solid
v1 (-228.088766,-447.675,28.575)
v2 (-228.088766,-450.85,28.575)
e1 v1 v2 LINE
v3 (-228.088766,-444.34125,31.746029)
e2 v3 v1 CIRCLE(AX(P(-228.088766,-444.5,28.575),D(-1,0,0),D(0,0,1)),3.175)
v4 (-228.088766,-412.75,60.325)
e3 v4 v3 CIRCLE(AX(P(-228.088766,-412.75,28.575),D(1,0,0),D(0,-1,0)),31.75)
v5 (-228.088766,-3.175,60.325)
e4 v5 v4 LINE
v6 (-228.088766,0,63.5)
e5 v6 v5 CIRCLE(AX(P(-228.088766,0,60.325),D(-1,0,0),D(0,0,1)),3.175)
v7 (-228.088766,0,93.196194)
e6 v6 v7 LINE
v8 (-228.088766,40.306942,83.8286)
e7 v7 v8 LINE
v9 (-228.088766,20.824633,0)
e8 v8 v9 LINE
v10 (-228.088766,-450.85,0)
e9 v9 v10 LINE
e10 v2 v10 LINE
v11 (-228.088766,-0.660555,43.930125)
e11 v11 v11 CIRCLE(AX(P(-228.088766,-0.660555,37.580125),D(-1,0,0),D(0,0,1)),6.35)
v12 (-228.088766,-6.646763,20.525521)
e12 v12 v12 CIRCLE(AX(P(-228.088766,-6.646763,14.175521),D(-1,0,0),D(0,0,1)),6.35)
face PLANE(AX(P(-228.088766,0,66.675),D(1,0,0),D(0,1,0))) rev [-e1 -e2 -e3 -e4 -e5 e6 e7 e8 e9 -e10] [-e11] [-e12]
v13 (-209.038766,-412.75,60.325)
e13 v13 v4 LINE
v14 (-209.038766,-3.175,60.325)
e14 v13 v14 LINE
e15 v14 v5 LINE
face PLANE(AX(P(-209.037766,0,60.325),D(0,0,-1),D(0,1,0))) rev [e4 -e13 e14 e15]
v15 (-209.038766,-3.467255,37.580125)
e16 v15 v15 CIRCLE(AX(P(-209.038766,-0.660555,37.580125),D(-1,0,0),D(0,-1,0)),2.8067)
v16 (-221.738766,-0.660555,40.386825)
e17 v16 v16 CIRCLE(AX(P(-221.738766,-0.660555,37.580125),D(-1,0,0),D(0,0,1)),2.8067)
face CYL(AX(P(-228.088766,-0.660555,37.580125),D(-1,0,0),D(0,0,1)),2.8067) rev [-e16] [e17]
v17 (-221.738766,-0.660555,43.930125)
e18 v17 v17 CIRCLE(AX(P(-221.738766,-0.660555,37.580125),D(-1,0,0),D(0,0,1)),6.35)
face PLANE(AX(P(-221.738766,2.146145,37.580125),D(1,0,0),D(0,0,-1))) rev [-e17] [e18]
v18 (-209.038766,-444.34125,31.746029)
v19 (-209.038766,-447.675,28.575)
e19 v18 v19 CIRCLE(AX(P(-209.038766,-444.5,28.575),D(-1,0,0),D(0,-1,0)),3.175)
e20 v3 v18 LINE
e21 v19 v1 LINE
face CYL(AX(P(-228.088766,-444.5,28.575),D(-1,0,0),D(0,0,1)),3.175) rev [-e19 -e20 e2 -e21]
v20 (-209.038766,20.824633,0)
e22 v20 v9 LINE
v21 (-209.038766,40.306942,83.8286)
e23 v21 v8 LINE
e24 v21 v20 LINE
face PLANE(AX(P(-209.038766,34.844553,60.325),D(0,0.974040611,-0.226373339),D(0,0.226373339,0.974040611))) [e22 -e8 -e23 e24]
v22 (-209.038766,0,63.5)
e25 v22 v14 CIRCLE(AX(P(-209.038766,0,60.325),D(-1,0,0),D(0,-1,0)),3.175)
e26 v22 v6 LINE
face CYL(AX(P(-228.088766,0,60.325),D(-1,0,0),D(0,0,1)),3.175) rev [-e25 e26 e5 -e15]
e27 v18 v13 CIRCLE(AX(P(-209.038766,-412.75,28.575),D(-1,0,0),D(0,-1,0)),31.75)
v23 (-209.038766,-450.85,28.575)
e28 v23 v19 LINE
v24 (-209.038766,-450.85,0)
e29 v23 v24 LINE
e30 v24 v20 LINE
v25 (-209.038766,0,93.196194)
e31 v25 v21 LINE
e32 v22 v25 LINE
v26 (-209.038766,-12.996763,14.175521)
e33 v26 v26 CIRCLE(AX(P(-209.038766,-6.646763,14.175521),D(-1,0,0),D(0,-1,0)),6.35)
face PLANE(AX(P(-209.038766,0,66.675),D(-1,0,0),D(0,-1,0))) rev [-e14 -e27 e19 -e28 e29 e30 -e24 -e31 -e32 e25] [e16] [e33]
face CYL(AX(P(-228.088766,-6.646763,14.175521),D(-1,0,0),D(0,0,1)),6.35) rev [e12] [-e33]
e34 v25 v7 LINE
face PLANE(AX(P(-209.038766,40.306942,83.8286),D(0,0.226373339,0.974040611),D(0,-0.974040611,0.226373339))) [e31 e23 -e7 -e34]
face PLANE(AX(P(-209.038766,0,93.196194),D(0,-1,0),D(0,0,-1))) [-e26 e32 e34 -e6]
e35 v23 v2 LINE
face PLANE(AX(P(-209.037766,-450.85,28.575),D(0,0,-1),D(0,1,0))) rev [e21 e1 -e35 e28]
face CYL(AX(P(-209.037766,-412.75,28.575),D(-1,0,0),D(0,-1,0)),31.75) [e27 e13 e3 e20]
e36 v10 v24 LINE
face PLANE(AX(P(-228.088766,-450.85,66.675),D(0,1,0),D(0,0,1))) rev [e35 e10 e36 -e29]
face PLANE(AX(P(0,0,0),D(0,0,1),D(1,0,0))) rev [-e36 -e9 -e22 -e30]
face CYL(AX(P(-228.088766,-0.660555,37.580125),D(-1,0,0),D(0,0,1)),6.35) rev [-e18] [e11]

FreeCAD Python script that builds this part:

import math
import FreeCAD as App
import Part
import Sketcher
Q = App.Units.Quantity


def edges_at(feature, points):
    """Names of the edges that pass closest to the given points."""
    edges = feature.Shape.Edges
    near = lambda p: min(range(len(edges)), key=lambda i: edges[i].distToShape(Part.Vertex(*p))[0])
    return sorted({f"Edge{near(p) + 1}" for p in points})

doc = App.newDocument("Part")
body = doc.addObject("PartDesign::Body", "Body")

# Sketch on XY plane
sketch1 = doc.addObject("Sketcher::SketchObject", "Sketch")
body.addObject(sketch1)
sketch1.AttachmentSupport = (doc.XY_Plane, [""])
sketch1.MapMode = "FlatFace"
sketch1.addGeometry(Part.LineSegment(App.Vector(-228, 0, 0), App.Vector(-228, -451, 0)), False)
sketch1.addGeometry(Part.LineSegment(App.Vector(-228, -451, 0), App.Vector(-209, -451, 0)), False)
sketch1.addGeometry(Part.LineSegment(App.Vector(-209, -451, 0), App.Vector(-209, 0, 0)), False)
sketch1.addGeometry(Part.LineSegment(App.Vector(-209, 0, 0), App.Vector(-228, 0, 0)), False)
sketch1.addConstraint(Sketcher.Constraint("Coincident", 0, 2, 1, 1))
sketch1.addConstraint(Sketcher.Constraint("Coincident", 1, 2, 2, 1))
sketch1.addConstraint(Sketcher.Constraint("Coincident", 2, 2, 3, 1))
sketch1.addConstraint(Sketcher.Constraint("Coincident", 3, 2, 0, 1))
sketch1.addConstraint(Sketcher.Constraint("Vertical", 0))
sketch1.addConstraint(Sketcher.Constraint("Horizontal", 1))
sketch1.addConstraint(Sketcher.Constraint("Vertical", 2))
sketch1.addConstraint(Sketcher.Constraint("Horizontal", 3))
sketch1.addConstraint(Sketcher.Constraint("PointOnObject", 2, 2, -1))
sketch1.addConstraint(Sketcher.Constraint("DistanceX", 1, 1, 1, 2, Q("0.75 in")))
sketch1.addConstraint(Sketcher.Constraint("DistanceY", 0, 2, 0, 1, Q("17.75 in")))
sketch1.addConstraint(Sketcher.Constraint("DistanceX", 0, 2, -1, 1, Q("228.088766 mm")))
pad1 = doc.addObject("PartDesign::Pad", "Pad")
body.addObject(pad1)
pad1.Profile = sketch1
pad1.Length = Q("2.625 in")
doc.recompute()

fillet = doc.addObject("PartDesign::Fillet", "Fillet")
body.addObject(fillet)
fillet.Base = (pad1, edges_at(pad1, [(-218.564, -450.85, 66.675)]))
fillet.Radius = Q("1.5 in")

# Sketch on YZ plane
sketch2 = doc.addObject("Sketcher::SketchObject", "Sketch001")
body.addObject(sketch2)
sketch2.AttachmentSupport = (doc.YZ_Plane, [""])
sketch2.MapMode = "FlatFace"
sketch2.AttachmentOffset = App.Placement(App.Vector(0, 0, -228.088766), App.Rotation())
sketch2.addGeometry(Part.LineSegment(App.Vector(-413, 67, 0), App.Vector(0, 67, 0)), False)
sketch2.addGeometry(Part.LineSegment(App.Vector(0, 67, 0), App.Vector(0, 60, 0)), False)
sketch2.addGeometry(Part.LineSegment(App.Vector(0, 60, 0), App.Vector(-413, 60, 0)), False)
sketch2.addGeometry(Part.ArcOfCircle(Part.Circle(App.Vector(-413, 29, 0), App.Vector(0, 0, 1), 32), math.radians(90), math.radians(180)), False)
sketch2.addGeometry(Part.LineSegment(App.Vector(-444, 29, 0), App.Vector(-451, 29, 0)), False)
sketch2.addGeometry(Part.ArcOfCircle(Part.Circle(App.Vector(-413, 29, 0), App.Vector(0, 0, 1), 38), math.radians(90), math.radians(180)), False)
sketch2.addConstraint(Sketcher.Constraint("Coincident", 0, 2, 1, 1))
sketch2.addConstraint(Sketcher.Constraint("Coincident", 1, 2, 2, 1))
sketch2.addConstraint(Sketcher.Constraint("Tangent", 2, 2, 3, 1))
sketch2.addConstraint(Sketcher.Constraint("Coincident", 3, 2, 4, 1))
sketch2.addConstraint(Sketcher.Constraint("Coincident", 4, 2, 5, 2))
sketch2.addConstraint(Sketcher.Constraint("Tangent", 5, 1, 0, 1))
sketch2.addConstraint(Sketcher.Constraint("Horizontal", 0))
sketch2.addConstraint(Sketcher.Constraint("Vertical", 1))
sketch2.addConstraint(Sketcher.Constraint("Horizontal", 2))
sketch2.addConstraint(Sketcher.Constraint("Horizontal", 4))
sketch2.addConstraint(Sketcher.Constraint("Coincident", 5, 3, 3, 3))
sketch2.addConstraint(Sketcher.Constraint("PointOnObject", 0, 2, -2))
sketch2.addConstraint(Sketcher.Constraint("Horizontal", 5, 3, 3, 2))
sketch2.addConstraint(Sketcher.Constraint("Radius", 5, Q("1.5 in")))
sketch2.addConstraint(Sketcher.Constraint("Radius", 3, Q("1.25 in")))
sketch2.addConstraint(Sketcher.Constraint("DistanceX", 0, 1, 0, 2, Q("16.25 in")))
sketch2.addConstraint(Sketcher.Constraint("DistanceY", -1, 1, 3, 3, Q("1.125 in")))
pocket1 = doc.addObject("PartDesign::Pocket", "Pocket")
body.addObject(pocket1)
pocket1.Profile = sketch2
pocket1.Type = "UpToFirst"
pocket1.Reversed = True

# Sketch on YZ plane
sketch3 = doc.addObject("Sketcher::SketchObject", "Sketch002")
body.addObject(sketch3)
sketch3.AttachmentSupport = (doc.YZ_Plane, [""])
sketch3.MapMode = "FlatFace"
sketch3.AttachmentOffset = App.Placement(App.Vector(0, 0, -228.088766), App.Rotation())
sketch3.addGeometry(Part.LineSegment(App.Vector(0, 0, 0), App.Vector(0, 60, 0)), False)
sketch3.addGeometry(Part.LineSegment(App.Vector(0, 60, 0), App.Vector(35, 60, 0)), False)
sketch3.addGeometry(Part.LineSegment(App.Vector(35, 60, 0), App.Vector(21, 0, 0)), False)
sketch3.addGeometry(Part.LineSegment(App.Vector(21, 0, 0), App.Vector(0, 0, 0)), False)
sketch3.addConstraint(Sketcher.Constraint("Coincident", 0, 2, 1, 1))
sketch3.addConstraint(Sketcher.Constraint("Coincident", 1, 2, 2, 1))
sketch3.addConstraint(Sketcher.Constraint("Coincident", 2, 2, 3, 1))
sketch3.addConstraint(Sketcher.Constraint("Coincident", 3, 2, 0, 1))
sketch3.addConstraint(Sketcher.Constraint("Vertical", 0))
sketch3.addConstraint(Sketcher.Constraint("Horizontal", 1))
sketch3.addConstraint(Sketcher.Constraint("Horizontal", 3))
sketch3.addConstraint(Sketcher.Constraint("Coincident", 3, 2, -1, 1))
sketch3.addConstraint(Sketcher.Constraint("DistanceY", 0, 1, 0, 2, Q("2.375 in")))
sketch3.addConstraint(Sketcher.Constraint("DistanceX", 1, 1, 1, 2, Q("34.844553 mm")))
sketch3.addConstraint(Sketcher.Constraint("DistanceX", 3, 2, 3, 1, Q("20.824633 mm")))
pad2 = doc.addObject("PartDesign::Pad", "Pad001")
body.addObject(pad2)
pad2.Profile = sketch3
pad2.Length = Q("0.75 in")

# Sketch on YZ plane
sketch4 = doc.addObject("Sketcher::SketchObject", "Sketch003")
body.addObject(sketch4)
sketch4.AttachmentSupport = (doc.YZ_Plane, [""])
sketch4.MapMode = "FlatFace"
sketch4.AttachmentOffset = App.Placement(App.Vector(0, 0, -228.088766), App.Rotation())
sketch4.addGeometry(Part.LineSegment(App.Vector(40, 84, 0), App.Vector(35, 60, 0)), False)
sketch4.addGeometry(Part.LineSegment(App.Vector(35, 60, 0), App.Vector(0, 60, 0)), False)
sketch4.addGeometry(Part.LineSegment(App.Vector(0, 60, 0), App.Vector(0, 93, 0)), False)
sketch4.addGeometry(Part.LineSegment(App.Vector(0, 93, 0), App.Vector(40, 84, 0)), False)
sketch4.addConstraint(Sketcher.Constraint("Coincident", 0, 2, 1, 1))
sketch4.addConstraint(Sketcher.Constraint("Coincident", 1, 2, 2, 1))
sketch4.addConstraint(Sketcher.Constraint("Coincident", 2, 2, 3, 1))
sketch4.addConstraint(Sketcher.Constraint("Coincident", 3, 2, 0, 1))
sketch4.addConstraint(Sketcher.Constraint("Horizontal", 1))
sketch4.addConstraint(Sketcher.Constraint("Vertical", 2))
sketch4.addConstraint(Sketcher.Constraint("PointOnObject", 1, 2, -2))
sketch4.addConstraint(Sketcher.Constraint("Perpendicular", 0, 3))
sketch4.addConstraint(Sketcher.Constraint("Distance", 0, Q("0.95 in")))
sketch4.addConstraint(Sketcher.Constraint("DistanceY", -1, 1, 0, 2, Q("2.375 in")))
sketch4.addConstraint(Sketcher.Constraint("DistanceY", -1, 1, 3, 2, Q("83.8286 mm")))
sketch4.addConstraint(Sketcher.Constraint("Distance", 3, Q("41.381172 mm")))
pad3 = doc.addObject("PartDesign::Pad", "Pad002")
body.addObject(pad3)
pad3.Profile = sketch4
pad3.Length = Q("0.75 in")

# Sketch on YZ plane
sketch5 = doc.addObject("Sketcher::SketchObject", "Sketch004")
body.addObject(sketch5)
sketch5.AttachmentSupport = (doc.YZ_Plane, [""])
sketch5.MapMode = "FlatFace"
sketch5.AttachmentOffset = App.Placement(App.Vector(0, 0, -228.088766), App.Rotation())
sketch5.addGeometry(Part.Circle(App.Vector(-444.5, 28.6, 0), App.Vector(0, 0, 1), 3.2), False)
sketch5.addGeometry(Part.Circle(App.Vector(0, 60.3, 0), App.Vector(0, 0, 1), 3.2), False)
sketch5.addConstraint(Sketcher.Constraint("Equal", 0, 1))
sketch5.addConstraint(Sketcher.Constraint("PointOnObject", 1, 3, -2))
sketch5.addConstraint(Sketcher.Constraint("Diameter", 0, Q("0.25 in")))
sketch5.addConstraint(Sketcher.Constraint("DistanceX", 0, 3, -1, 1, Q("17.5 in")))
sketch5.addConstraint(Sketcher.Constraint("DistanceY", 0, 3, 1, 3, Q("1.25 in")))
sketch5.addConstraint(Sketcher.Constraint("DistanceY", -1, 1, 0, 3, Q("1.125 in")))
doc.recompute()
hole = doc.addObject("PartDesign::Hole", "Hole")
body.addObject(hole)
hole.Profile = sketch5
hole.ThreadType = "None"
hole.Diameter = Q("0.25 in")
hole.DepthType = "ThroughAll"
hole.Reversed = True

# Sketch on YZ plane
sketch6 = doc.addObject("Sketcher::SketchObject", "Sketch005")
body.addObject(sketch6)
sketch6.AttachmentSupport = (doc.YZ_Plane, [""])
sketch6.MapMode = "FlatFace"
sketch6.AttachmentOffset = App.Placement(App.Vector(0, 0, -228.088766), App.Rotation())
sketch6.addGeometry(Part.Circle(App.Vector(-0.7, 37.6, 0), App.Vector(0, 0, 1), 2.8), False)
sketch6.addConstraint(Sketcher.Constraint("Diameter", 0, Q("0.221 in")))
sketch6.addConstraint(Sketcher.Constraint("DistanceX", 0, 3, -1, 1, Q("0.660555 mm")))
sketch6.addConstraint(Sketcher.Constraint("DistanceY", -1, 1, 0, 3, Q("37.580125 mm")))
doc.recompute()
hole2 = doc.addObject("PartDesign::Hole", "Hole001")
body.addObject(hole2)
hole2.Profile = sketch6
hole2.ThreadType = "None"
hole2.Diameter = Q("0.221 in")
hole2.DepthType = "ThroughAll"
hole2.HoleCutType = "Counterbore"
hole2.HoleCutDiameter = Q("0.5 in")
hole2.HoleCutDepth = Q("0.25 in")
hole2.Reversed = True

# Sketch on YZ plane
sketch7 = doc.addObject("Sketcher::SketchObject", "Sketch006")
body.addObject(sketch7)
sketch7.AttachmentSupport = (doc.YZ_Plane, [""])
sketch7.MapMode = "FlatFace"
sketch7.AttachmentOffset = App.Placement(App.Vector(0, 0, -228.088766), App.Rotation())
sketch7.addGeometry(Part.Circle(App.Vector(-7, 14, 0), App.Vector(0, 0, 1), 6), False)
sketch7.addConstraint(Sketcher.Constraint("Diameter", 0, Q("0.5 in")))
sketch7.addConstraint(Sketcher.Constraint("DistanceY", -1, 1, 0, 3, Q("14.175521 mm")))
sketch7.addConstraint(Sketcher.Constraint("DistanceX", 0, 3, -1, 1, Q("6.646763 mm")))
doc.recompute()
hole3 = doc.addObject("PartDesign::Hole", "Hole002")
body.addObject(hole3)
hole3.Profile = sketch7
hole3.ThreadType = "None"
hole3.Diameter = Q("0.5 in")
hole3.DepthType = "ThroughAll"
hole3.Reversed = True

doc.recompute()
